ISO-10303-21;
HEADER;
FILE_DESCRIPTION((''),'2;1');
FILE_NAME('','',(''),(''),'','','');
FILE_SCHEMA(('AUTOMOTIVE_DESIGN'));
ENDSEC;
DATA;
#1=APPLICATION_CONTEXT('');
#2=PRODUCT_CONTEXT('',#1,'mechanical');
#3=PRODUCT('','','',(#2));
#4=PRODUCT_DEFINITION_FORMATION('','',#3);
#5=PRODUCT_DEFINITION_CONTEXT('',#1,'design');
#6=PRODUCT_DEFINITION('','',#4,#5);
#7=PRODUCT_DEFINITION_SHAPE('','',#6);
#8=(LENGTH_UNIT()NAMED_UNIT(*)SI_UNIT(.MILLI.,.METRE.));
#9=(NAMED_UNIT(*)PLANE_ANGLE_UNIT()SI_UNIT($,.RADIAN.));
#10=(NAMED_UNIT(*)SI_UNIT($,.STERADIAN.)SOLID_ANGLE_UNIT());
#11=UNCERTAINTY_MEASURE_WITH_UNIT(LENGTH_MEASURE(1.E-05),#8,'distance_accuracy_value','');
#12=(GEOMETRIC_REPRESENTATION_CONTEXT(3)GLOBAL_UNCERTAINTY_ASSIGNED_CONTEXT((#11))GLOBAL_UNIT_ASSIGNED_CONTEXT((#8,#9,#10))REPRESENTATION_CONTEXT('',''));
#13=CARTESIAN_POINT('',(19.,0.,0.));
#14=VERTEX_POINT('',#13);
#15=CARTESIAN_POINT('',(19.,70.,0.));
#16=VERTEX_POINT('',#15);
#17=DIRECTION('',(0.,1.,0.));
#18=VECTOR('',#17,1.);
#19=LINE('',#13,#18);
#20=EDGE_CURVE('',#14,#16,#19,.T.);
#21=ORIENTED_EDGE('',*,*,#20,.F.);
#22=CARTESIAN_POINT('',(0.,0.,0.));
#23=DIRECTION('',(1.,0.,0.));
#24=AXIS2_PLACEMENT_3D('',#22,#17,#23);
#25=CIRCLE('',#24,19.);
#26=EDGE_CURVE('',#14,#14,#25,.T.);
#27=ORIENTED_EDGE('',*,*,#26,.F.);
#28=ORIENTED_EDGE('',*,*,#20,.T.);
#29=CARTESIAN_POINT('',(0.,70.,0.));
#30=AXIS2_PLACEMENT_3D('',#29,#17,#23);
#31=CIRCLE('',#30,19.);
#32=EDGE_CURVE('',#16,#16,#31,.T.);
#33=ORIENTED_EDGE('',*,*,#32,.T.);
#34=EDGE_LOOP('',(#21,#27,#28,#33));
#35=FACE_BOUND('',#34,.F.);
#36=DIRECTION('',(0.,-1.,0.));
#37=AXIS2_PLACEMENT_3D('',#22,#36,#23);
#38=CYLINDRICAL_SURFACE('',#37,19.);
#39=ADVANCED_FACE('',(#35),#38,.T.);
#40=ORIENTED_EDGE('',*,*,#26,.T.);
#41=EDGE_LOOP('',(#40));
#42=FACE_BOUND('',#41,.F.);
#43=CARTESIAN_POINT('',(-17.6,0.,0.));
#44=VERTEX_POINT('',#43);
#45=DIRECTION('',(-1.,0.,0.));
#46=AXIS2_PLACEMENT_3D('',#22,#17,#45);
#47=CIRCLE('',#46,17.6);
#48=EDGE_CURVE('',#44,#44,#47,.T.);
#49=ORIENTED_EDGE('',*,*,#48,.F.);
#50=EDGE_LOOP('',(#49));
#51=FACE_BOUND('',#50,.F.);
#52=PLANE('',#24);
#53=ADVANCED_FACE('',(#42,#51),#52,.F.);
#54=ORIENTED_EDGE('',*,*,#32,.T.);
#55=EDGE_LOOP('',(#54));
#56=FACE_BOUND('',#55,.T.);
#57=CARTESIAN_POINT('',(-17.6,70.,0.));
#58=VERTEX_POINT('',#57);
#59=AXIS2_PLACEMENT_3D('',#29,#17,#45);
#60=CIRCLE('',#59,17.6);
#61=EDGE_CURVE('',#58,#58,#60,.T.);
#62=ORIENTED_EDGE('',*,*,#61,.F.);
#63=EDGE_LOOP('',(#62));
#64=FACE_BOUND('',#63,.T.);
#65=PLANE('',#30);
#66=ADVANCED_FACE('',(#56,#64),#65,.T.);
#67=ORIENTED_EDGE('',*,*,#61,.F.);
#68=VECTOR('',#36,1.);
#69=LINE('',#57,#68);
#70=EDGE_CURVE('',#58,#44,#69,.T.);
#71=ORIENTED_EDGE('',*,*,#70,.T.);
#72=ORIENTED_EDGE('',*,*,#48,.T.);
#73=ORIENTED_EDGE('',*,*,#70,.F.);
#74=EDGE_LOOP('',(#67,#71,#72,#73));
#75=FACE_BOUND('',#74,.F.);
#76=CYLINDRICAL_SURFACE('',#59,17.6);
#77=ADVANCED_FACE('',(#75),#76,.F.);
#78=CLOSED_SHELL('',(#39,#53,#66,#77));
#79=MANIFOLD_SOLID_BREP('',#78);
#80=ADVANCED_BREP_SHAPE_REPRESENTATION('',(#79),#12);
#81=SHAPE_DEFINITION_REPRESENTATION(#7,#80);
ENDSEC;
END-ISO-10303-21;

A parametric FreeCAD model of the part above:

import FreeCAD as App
import Part
import Sketcher

V = App.Vector
Q = App.Units.Quantity

doc = App.newDocument("Part")
body = doc.addObject("PartDesign::Body", "Body")

# Sketch on XZ plane
sketch1 = body.newObject("Sketcher::SketchObject", "Sketch")
sketch1.AttachmentSupport = (doc.getObject("XZ_Plane"), [""])
sketch1.MapMode = "FlatFace"
sketch1.addGeometry(Part.Circle(V(0, 0, 0), V(0, 0, 1), 19), False)
sketch1.addConstraint([
    Sketcher.Constraint("Coincident", 0, 3, -1, 1),
    Sketcher.Constraint("Diameter", 0, Q("38 mm")),
])
pad1 = body.newObject("PartDesign::Pad", "Pad")
pad1.Profile = sketch1
pad1.Length = 70
pad1.Reversed = True

# Sketch on XZ plane
sketch2 = body.newObject("Sketcher::SketchObject", "Sketch001")
sketch2.AttachmentSupport = (doc.getObject("XZ_Plane"), [""])
sketch2.MapMode = "FlatFace"
sketch2.AttachmentOffset = App.Placement(V(0, 0, -70), App.Rotation())
sketch2.addGeometry(Part.Circle(V(0, 0, 0), V(0, 0, 1), 18), False)
sketch2.addConstraint([
    Sketcher.Constraint("Coincident", 0, 3, -1, 1),
    Sketcher.Constraint("Diameter", 0, Q("35.2 mm")),
])
pocket1 = body.newObject("PartDesign::Pocket", "Pocket")
pocket1.Profile = sketch2
pocket1.Type = "ThroughAll"
pocket1.Reversed = True

doc.recompute()
